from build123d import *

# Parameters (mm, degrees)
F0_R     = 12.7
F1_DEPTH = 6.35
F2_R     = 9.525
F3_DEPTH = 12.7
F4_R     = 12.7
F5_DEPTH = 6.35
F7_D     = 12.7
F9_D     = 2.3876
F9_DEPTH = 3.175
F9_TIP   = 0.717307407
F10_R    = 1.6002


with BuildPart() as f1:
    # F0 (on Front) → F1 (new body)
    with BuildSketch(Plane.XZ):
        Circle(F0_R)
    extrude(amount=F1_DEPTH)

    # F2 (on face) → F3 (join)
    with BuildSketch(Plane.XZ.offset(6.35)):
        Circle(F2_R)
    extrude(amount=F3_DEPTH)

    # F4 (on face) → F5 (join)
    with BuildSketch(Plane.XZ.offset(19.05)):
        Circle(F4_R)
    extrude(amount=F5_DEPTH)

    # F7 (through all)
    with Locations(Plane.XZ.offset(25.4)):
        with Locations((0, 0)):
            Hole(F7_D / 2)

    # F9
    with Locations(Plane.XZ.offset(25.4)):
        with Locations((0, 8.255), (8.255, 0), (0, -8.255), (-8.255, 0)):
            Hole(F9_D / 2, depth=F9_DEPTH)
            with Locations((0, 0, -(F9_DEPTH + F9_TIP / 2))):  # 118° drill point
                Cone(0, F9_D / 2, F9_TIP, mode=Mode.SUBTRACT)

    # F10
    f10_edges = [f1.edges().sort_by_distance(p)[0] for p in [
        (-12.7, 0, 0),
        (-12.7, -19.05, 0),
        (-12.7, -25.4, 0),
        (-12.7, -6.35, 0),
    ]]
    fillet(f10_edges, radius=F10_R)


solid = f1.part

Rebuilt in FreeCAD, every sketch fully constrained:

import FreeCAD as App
import Part
import Sketcher

V = App.Vector
Q = App.Units.Quantity


def edges_at(feature, points):
    """Names of the edges that pass closest to the given points."""
    edges = feature.Shape.Edges
    near = lambda p: min(range(len(edges)), key=lambda i: edges[i].distToShape(Part.Vertex(*p))[0])
    return sorted({f"Edge{near(p) + 1}" for p in points})

doc = App.newDocument("Part")
body = doc.addObject("PartDesign::Body", "Body")

# Sketch on XZ plane
sketch1 = body.newObject("Sketcher::SketchObject", "Sketch")
sketch1.AttachmentSupport = (doc.getObject("XZ_Plane"), [""])
sketch1.MapMode = "FlatFace"
sketch1.addGeometry(Part.Circle(V(0, 0, 0), V(0, 0, 1), 13), False)
sketch1.addConstraint(Sketcher.Constraint("Coincident", 0, 3, -1, 1))
sketch1.addConstraint(Sketcher.Constraint("Diameter", 0, Q("1 in")))
pad1 = body.newObject("PartDesign::Pad", "Pad")
pad1.Profile = sketch1
pad1.Length = Q("0.25 in")

# Sketch on XZ plane
sketch2 = body.newObject("Sketcher::SketchObject", "Sketch001")
sketch2.AttachmentSupport = (doc.getObject("XZ_Plane"), [""])
sketch2.MapMode = "FlatFace"
sketch2.AttachmentOffset = App.Placement(V(0, 0, 0.25 * 25.4), App.Rotation())
sketch2.addGeometry(Part.Circle(V(0, 0, 0), V(0, 0, 1), 10), False)
sketch2.addConstraint(Sketcher.Constraint("Coincident", 0, 3, -1, 1))
sketch2.addConstraint(Sketcher.Constraint("Diameter", 0, Q("0.75 in")))
pad2 = body.newObject("PartDesign::Pad", "Pad001")
pad2.Profile = sketch2
pad2.Length = Q("0.5 in")

# Sketch on XZ plane
sketch3 = body.newObject("Sketcher::SketchObject", "Sketch002")
sketch3.AttachmentSupport = (doc.getObject("XZ_Plane"), [""])
sketch3.MapMode = "FlatFace"
sketch3.AttachmentOffset = App.Placement(V(0, 0, 0.75 * 25.4), App.Rotation())
sketch3.addGeometry(Part.Circle(V(0, 0, 0), V(0, 0, 1), 13), False)
sketch3.addConstraint(Sketcher.Constraint("Coincident", 0, 3, -1, 1))
sketch3.addConstraint(Sketcher.Constraint("Diameter", 0, Q("1 in")))
pad3 = body.newObject("PartDesign::Pad", "Pad002")
pad3.Profile = sketch3
pad3.Length = Q("0.25 in")

# Sketch on XZ plane
sketch4 = body.newObject("Sketcher::SketchObject", "Sketch003")
sketch4.AttachmentSupport = (doc.getObject("XZ_Plane"), [""])
sketch4.MapMode = "FlatFace"
sketch4.AttachmentOffset = App.Placement(V(0, 0, 1 * 25.4), App.Rotation())
sketch4.addGeometry(Part.Circle(V(0, 0, 0), V(0, 0, 1), 6), False)
sketch4.addConstraint(Sketcher.Constraint("Coincident", 0, 3, -1, 1))
sketch4.addConstraint(Sketcher.Constraint("Diameter", 0, Q("0.5 in")))
doc.recompute()
hole = body.newObject("PartDesign::Hole", "Hole")
hole.Profile = sketch4
hole.ThreadType = "None"
hole.Diameter = Q("0.5 in")
hole.DepthType = "ThroughAll"

# Sketch on XZ plane
sketch5 = body.newObject("Sketcher::SketchObject", "Sketch004")
sketch5.AttachmentSupport = (doc.getObject("XZ_Plane"), [""])
sketch5.MapMode = "FlatFace"
sketch5.AttachmentOffset = App.Placement(V(0, 0, 1 * 25.4), App.Rotation())
sketch5.addGeometry(Part.Circle(V(0, 8.3, 0), V(0, 0, 1), 1.2), False)
sketch5.addGeometry(Part.Circle(V(8.3, 0, 0), V(0, 0, 1), 1.2), False)
sketch5.addGeometry(Part.Circle(V(0, -8.3, 0), V(0, 0, 1), 1.2), False)
sketch5.addGeometry(Part.Circle(V(-8.3, 0, 0), V(0, 0, 1), 1.2), False)
sketch5.addConstraint(Sketcher.Constraint("Equal", 0, 1))
sketch5.addConstraint(Sketcher.Constraint("Equal", 1, 2))
sketch5.addConstraint(Sketcher.Constraint("Equal", 2, 3))
sketch5.addConstraint(Sketcher.Constraint("Symmetric", 0, 3, 2, 3, -1, 1))
sketch5.addConstraint(Sketcher.Constraint("Symmetric", 1, 3, 3, 3, -1, 1))
sketch5.addConstraint(Sketcher.Constraint("PointOnObject", 0, 3, -2))
sketch5.addConstraint(Sketcher.Constraint("PointOnObject", 1, 3, -1))
sketch5.addConstraint(Sketcher.Constraint("Diameter", 0, Q("0.094 in")))
sketch5.addConstraint(Sketcher.Constraint("DistanceY", 2, 3, 0, 3, Q("0.65 in")))
sketch5.addConstraint(Sketcher.Constraint("DistanceX", 3, 3, 1, 3, Q("0.65 in")))
doc.recompute()
hole2 = body.newObject("PartDesign::Hole", "Hole001")
hole2.Profile = sketch5
hole2.ThreadType = "None"
hole2.Diameter = Q("0.094 in")
hole2.DepthType = "Dimension"
hole2.Depth = Q("0.125 in")
hole2.DrillPoint = "Angled"
hole2.DrillPointAngle = 118
doc.recompute()

fillet = body.newObject("PartDesign::Fillet", "Fillet")
fillet.Base = (hole2, edges_at(hole2, [
    (-12.7, 0, 0),
    (-12.7, -19.05, 0),
    (-12.7, -25.4, 0),
    (-12.7, -6.35, 0),
]))
fillet.Radius = Q("0.063 in")

doc.recompute()
